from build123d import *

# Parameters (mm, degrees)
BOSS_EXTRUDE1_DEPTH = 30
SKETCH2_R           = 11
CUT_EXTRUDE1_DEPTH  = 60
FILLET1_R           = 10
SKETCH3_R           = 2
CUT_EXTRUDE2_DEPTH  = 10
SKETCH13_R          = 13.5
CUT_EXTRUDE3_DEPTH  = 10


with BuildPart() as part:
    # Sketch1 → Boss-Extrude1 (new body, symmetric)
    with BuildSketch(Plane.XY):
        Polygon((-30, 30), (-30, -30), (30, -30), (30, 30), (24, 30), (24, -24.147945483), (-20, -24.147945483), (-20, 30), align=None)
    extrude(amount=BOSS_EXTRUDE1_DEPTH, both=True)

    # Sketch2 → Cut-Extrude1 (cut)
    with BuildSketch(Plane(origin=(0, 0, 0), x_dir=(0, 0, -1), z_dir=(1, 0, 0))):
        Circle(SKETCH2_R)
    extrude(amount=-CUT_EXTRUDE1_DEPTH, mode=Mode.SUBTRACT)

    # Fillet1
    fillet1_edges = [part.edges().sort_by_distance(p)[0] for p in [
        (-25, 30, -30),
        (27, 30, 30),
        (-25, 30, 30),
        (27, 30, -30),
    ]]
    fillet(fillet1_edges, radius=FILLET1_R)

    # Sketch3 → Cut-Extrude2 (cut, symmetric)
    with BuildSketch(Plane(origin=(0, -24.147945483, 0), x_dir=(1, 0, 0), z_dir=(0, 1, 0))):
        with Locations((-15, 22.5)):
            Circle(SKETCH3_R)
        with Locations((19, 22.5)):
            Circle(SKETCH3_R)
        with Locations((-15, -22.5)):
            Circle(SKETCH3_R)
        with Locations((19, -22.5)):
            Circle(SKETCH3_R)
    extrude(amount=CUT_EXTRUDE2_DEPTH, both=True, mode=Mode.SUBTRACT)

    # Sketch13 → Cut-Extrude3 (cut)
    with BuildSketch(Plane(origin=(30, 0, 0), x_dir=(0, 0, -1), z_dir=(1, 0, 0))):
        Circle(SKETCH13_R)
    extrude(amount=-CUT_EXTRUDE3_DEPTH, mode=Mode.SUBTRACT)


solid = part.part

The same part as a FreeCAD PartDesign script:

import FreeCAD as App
import Part
import Sketcher
Q = App.Units.Quantity


def edges_at(feature, points):
    """Names of the edges that pass closest to the given points."""
    edges = feature.Shape.Edges
    near = lambda p: min(range(len(edges)), key=lambda i: edges[i].distToShape(Part.Vertex(*p))[0])
    return sorted({f"Edge{near(p) + 1}" for p in points})

doc = App.newDocument("Part")
body = doc.addObject("PartDesign::Body", "Body")

sketch1 = doc.addObject("Sketcher::SketchObject", "Sketch")
body.addObject(sketch1)
sketch1.AttachmentSupport = (doc.XY_Plane, [""])
sketch1.MapMode = "FlatFace"
sketch1.addGeometry([
    Part.LineSegment(App.Vector(-30, 30, 0), App.Vector(-30, -30, 0)),
    Part.LineSegment(App.Vector(-30, -30, 0), App.Vector(30, -30, 0)),
    Part.LineSegment(App.Vector(30, -30, 0), App.Vector(30, 30, 0)),
    Part.LineSegment(App.Vector(30, 30, 0), App.Vector(24, 30, 0)),
    Part.LineSegment(App.Vector(24, 30, 0), App.Vector(24, -24, 0)),
    Part.LineSegment(App.Vector(24, -24, 0), App.Vector(-20, -24, 0)),
    Part.LineSegment(App.Vector(-20, -24, 0), App.Vector(-20, 30, 0)),
    Part.LineSegment(App.Vector(-20, 30, 0), App.Vector(-30, 30, 0)),
], False)
sketch1.addConstraint([
    Sketcher.Constraint("Coincident", 0, 2, 1, 1),
    Sketcher.Constraint("Coincident", 1, 2, 2, 1),
    Sketcher.Constraint("Coincident", 2, 2, 3, 1),
    Sketcher.Constraint("Coincident", 3, 2, 4, 1),
    Sketcher.Constraint("Coincident", 4, 2, 5, 1),
    Sketcher.Constraint("Coincident", 5, 2, 6, 1),
    Sketcher.Constraint("Coincident", 6, 2, 7, 1),
    Sketcher.Constraint("Coincident", 7, 2, 0, 1),
    Sketcher.Constraint("Vertical", 0),
    Sketcher.Constraint("Horizontal", 1),
    Sketcher.Constraint("Vertical", 2),
    Sketcher.Constraint("Horizontal", 3),
    Sketcher.Constraint("Vertical", 4),
    Sketcher.Constraint("Horizontal", 5),
    Sketcher.Constraint("Vertical", 6),
    Sketcher.Constraint("Horizontal", 7),
    Sketcher.Constraint("Symmetric", 0, 2, 2, 2, -1, 1),
    Sketcher.Constraint("Horizontal", 3, 2, 6, 2),
    Sketcher.Constraint("Equal", 1, 0),
    Sketcher.Constraint("DistanceX", 1, 1, 1, 2, Q("60 mm")),
    Sketcher.Constraint("DistanceX", 3, 2, 3, 1, Q("6 mm")),
    Sketcher.Constraint("DistanceX", 5, 2, 5, 1, Q("44 mm")),
    Sketcher.Constraint("DistanceY", 4, 2, 4, 1, Q("54.147945 mm")),
])
pad1 = doc.addObject("PartDesign::Pad", "Pad")
body.addObject(pad1)
pad1.Profile = sketch1
pad1.Length = 60
pad1.Midplane = True

sketch2 = doc.addObject("Sketcher::SketchObject", "Sketch001")
body.addObject(sketch2)
sketch2.AttachmentSupport = (doc.YZ_Plane, [""])
sketch2.MapMode = "FlatFace"
sketch2.addGeometry(Part.Circle(App.Vector(0, 0, 0), App.Vector(0, 0, 1), 11), False)
sketch2.addConstraint([
    Sketcher.Constraint("Coincident", 0, 3, -1, 1),
    Sketcher.Constraint("Diameter", 0, Q("22 mm")),
])
pocket1 = doc.addObject("PartDesign::Pocket", "Pocket")
body.addObject(pocket1)
pocket1.Profile = sketch2
pocket1.Length = 60
doc.recompute()

fillet = doc.addObject("PartDesign::Fillet", "Fillet")
body.addObject(fillet)
fillet.Base = (pocket1, edges_at(pocket1, [
    (-25, 30, -30),
    (27, 30, 30),
    (-25, 30, 30),
    (27, 30, -30),
]))
fillet.Radius = 10

sketch3 = doc.addObject("Sketcher::SketchObject", "Sketch002")
body.addObject(sketch3)
sketch3.AttachmentSupport = (doc.XZ_Plane, [""])
sketch3.MapMode = "FlatFace"
sketch3.AttachmentOffset = App.Placement(App.Vector(0, 0, 24.147945), App.Rotation())
sketch3.addGeometry([
    Part.Circle(App.Vector(-15, -22.5, 0), App.Vector(0, 0, 1), 2),
    Part.Circle(App.Vector(19, -22.5, 0), App.Vector(0, 0, 1), 2),
    Part.Circle(App.Vector(-15, 22.5, 0), App.Vector(0, 0, 1), 2),
    Part.Circle(App.Vector(19, 22.5, 0), App.Vector(0, 0, 1), 2),
], False)
sketch3.addConstraint([
    Sketcher.Constraint("Equal", 0, 1),
    Sketcher.Constraint("Equal", 1, 2),
    Sketcher.Constraint("Equal", 2, 3),
    Sketcher.Constraint("Symmetric", 0, 3, 2, 3, -1),
    Sketcher.Constraint("Symmetric", 1, 3, 3, 3, -1),
    Sketcher.Constraint("Horizontal", 0, 3, 1, 3),
    Sketcher.Constraint("Diameter", 0, Q("4 mm")),
    Sketcher.Constraint("DistanceX", 0, 3, -1, 1, Q("15 mm")),
    Sketcher.Constraint("DistanceX", -1, 1, 1, 3, Q("19 mm")),
    Sketcher.Constraint("DistanceY", 0, 3, 2, 3, Q("45 mm")),
])
pocket2 = doc.addObject("PartDesign::Pocket", "Pocket001")
body.addObject(pocket2)
pocket2.Profile = sketch3
pocket2.Length = 20
pocket2.Midplane = True

sketch4 = doc.addObject("Sketcher::SketchObject", "Sketch003")
body.addObject(sketch4)
sketch4.AttachmentSupport = (doc.YZ_Plane, [""])
sketch4.MapMode = "FlatFace"
sketch4.AttachmentOffset = App.Placement(App.Vector(0, 0, 30), App.Rotation())
sketch4.addGeometry(Part.Circle(App.Vector(0, 0, 0), App.Vector(0, 0, 1), 14), False)
sketch4.addConstraint([
    Sketcher.Constraint("Coincident", 0, 3, -1, 1),
    Sketcher.Constraint("Diameter", 0, Q("27 mm")),
])
pocket3 = doc.addObject("PartDesign::Pocket", "Pocket002")
body.addObject(pocket3)
pocket3.Profile = sketch4
pocket3.Length = 10

doc.recompute()
